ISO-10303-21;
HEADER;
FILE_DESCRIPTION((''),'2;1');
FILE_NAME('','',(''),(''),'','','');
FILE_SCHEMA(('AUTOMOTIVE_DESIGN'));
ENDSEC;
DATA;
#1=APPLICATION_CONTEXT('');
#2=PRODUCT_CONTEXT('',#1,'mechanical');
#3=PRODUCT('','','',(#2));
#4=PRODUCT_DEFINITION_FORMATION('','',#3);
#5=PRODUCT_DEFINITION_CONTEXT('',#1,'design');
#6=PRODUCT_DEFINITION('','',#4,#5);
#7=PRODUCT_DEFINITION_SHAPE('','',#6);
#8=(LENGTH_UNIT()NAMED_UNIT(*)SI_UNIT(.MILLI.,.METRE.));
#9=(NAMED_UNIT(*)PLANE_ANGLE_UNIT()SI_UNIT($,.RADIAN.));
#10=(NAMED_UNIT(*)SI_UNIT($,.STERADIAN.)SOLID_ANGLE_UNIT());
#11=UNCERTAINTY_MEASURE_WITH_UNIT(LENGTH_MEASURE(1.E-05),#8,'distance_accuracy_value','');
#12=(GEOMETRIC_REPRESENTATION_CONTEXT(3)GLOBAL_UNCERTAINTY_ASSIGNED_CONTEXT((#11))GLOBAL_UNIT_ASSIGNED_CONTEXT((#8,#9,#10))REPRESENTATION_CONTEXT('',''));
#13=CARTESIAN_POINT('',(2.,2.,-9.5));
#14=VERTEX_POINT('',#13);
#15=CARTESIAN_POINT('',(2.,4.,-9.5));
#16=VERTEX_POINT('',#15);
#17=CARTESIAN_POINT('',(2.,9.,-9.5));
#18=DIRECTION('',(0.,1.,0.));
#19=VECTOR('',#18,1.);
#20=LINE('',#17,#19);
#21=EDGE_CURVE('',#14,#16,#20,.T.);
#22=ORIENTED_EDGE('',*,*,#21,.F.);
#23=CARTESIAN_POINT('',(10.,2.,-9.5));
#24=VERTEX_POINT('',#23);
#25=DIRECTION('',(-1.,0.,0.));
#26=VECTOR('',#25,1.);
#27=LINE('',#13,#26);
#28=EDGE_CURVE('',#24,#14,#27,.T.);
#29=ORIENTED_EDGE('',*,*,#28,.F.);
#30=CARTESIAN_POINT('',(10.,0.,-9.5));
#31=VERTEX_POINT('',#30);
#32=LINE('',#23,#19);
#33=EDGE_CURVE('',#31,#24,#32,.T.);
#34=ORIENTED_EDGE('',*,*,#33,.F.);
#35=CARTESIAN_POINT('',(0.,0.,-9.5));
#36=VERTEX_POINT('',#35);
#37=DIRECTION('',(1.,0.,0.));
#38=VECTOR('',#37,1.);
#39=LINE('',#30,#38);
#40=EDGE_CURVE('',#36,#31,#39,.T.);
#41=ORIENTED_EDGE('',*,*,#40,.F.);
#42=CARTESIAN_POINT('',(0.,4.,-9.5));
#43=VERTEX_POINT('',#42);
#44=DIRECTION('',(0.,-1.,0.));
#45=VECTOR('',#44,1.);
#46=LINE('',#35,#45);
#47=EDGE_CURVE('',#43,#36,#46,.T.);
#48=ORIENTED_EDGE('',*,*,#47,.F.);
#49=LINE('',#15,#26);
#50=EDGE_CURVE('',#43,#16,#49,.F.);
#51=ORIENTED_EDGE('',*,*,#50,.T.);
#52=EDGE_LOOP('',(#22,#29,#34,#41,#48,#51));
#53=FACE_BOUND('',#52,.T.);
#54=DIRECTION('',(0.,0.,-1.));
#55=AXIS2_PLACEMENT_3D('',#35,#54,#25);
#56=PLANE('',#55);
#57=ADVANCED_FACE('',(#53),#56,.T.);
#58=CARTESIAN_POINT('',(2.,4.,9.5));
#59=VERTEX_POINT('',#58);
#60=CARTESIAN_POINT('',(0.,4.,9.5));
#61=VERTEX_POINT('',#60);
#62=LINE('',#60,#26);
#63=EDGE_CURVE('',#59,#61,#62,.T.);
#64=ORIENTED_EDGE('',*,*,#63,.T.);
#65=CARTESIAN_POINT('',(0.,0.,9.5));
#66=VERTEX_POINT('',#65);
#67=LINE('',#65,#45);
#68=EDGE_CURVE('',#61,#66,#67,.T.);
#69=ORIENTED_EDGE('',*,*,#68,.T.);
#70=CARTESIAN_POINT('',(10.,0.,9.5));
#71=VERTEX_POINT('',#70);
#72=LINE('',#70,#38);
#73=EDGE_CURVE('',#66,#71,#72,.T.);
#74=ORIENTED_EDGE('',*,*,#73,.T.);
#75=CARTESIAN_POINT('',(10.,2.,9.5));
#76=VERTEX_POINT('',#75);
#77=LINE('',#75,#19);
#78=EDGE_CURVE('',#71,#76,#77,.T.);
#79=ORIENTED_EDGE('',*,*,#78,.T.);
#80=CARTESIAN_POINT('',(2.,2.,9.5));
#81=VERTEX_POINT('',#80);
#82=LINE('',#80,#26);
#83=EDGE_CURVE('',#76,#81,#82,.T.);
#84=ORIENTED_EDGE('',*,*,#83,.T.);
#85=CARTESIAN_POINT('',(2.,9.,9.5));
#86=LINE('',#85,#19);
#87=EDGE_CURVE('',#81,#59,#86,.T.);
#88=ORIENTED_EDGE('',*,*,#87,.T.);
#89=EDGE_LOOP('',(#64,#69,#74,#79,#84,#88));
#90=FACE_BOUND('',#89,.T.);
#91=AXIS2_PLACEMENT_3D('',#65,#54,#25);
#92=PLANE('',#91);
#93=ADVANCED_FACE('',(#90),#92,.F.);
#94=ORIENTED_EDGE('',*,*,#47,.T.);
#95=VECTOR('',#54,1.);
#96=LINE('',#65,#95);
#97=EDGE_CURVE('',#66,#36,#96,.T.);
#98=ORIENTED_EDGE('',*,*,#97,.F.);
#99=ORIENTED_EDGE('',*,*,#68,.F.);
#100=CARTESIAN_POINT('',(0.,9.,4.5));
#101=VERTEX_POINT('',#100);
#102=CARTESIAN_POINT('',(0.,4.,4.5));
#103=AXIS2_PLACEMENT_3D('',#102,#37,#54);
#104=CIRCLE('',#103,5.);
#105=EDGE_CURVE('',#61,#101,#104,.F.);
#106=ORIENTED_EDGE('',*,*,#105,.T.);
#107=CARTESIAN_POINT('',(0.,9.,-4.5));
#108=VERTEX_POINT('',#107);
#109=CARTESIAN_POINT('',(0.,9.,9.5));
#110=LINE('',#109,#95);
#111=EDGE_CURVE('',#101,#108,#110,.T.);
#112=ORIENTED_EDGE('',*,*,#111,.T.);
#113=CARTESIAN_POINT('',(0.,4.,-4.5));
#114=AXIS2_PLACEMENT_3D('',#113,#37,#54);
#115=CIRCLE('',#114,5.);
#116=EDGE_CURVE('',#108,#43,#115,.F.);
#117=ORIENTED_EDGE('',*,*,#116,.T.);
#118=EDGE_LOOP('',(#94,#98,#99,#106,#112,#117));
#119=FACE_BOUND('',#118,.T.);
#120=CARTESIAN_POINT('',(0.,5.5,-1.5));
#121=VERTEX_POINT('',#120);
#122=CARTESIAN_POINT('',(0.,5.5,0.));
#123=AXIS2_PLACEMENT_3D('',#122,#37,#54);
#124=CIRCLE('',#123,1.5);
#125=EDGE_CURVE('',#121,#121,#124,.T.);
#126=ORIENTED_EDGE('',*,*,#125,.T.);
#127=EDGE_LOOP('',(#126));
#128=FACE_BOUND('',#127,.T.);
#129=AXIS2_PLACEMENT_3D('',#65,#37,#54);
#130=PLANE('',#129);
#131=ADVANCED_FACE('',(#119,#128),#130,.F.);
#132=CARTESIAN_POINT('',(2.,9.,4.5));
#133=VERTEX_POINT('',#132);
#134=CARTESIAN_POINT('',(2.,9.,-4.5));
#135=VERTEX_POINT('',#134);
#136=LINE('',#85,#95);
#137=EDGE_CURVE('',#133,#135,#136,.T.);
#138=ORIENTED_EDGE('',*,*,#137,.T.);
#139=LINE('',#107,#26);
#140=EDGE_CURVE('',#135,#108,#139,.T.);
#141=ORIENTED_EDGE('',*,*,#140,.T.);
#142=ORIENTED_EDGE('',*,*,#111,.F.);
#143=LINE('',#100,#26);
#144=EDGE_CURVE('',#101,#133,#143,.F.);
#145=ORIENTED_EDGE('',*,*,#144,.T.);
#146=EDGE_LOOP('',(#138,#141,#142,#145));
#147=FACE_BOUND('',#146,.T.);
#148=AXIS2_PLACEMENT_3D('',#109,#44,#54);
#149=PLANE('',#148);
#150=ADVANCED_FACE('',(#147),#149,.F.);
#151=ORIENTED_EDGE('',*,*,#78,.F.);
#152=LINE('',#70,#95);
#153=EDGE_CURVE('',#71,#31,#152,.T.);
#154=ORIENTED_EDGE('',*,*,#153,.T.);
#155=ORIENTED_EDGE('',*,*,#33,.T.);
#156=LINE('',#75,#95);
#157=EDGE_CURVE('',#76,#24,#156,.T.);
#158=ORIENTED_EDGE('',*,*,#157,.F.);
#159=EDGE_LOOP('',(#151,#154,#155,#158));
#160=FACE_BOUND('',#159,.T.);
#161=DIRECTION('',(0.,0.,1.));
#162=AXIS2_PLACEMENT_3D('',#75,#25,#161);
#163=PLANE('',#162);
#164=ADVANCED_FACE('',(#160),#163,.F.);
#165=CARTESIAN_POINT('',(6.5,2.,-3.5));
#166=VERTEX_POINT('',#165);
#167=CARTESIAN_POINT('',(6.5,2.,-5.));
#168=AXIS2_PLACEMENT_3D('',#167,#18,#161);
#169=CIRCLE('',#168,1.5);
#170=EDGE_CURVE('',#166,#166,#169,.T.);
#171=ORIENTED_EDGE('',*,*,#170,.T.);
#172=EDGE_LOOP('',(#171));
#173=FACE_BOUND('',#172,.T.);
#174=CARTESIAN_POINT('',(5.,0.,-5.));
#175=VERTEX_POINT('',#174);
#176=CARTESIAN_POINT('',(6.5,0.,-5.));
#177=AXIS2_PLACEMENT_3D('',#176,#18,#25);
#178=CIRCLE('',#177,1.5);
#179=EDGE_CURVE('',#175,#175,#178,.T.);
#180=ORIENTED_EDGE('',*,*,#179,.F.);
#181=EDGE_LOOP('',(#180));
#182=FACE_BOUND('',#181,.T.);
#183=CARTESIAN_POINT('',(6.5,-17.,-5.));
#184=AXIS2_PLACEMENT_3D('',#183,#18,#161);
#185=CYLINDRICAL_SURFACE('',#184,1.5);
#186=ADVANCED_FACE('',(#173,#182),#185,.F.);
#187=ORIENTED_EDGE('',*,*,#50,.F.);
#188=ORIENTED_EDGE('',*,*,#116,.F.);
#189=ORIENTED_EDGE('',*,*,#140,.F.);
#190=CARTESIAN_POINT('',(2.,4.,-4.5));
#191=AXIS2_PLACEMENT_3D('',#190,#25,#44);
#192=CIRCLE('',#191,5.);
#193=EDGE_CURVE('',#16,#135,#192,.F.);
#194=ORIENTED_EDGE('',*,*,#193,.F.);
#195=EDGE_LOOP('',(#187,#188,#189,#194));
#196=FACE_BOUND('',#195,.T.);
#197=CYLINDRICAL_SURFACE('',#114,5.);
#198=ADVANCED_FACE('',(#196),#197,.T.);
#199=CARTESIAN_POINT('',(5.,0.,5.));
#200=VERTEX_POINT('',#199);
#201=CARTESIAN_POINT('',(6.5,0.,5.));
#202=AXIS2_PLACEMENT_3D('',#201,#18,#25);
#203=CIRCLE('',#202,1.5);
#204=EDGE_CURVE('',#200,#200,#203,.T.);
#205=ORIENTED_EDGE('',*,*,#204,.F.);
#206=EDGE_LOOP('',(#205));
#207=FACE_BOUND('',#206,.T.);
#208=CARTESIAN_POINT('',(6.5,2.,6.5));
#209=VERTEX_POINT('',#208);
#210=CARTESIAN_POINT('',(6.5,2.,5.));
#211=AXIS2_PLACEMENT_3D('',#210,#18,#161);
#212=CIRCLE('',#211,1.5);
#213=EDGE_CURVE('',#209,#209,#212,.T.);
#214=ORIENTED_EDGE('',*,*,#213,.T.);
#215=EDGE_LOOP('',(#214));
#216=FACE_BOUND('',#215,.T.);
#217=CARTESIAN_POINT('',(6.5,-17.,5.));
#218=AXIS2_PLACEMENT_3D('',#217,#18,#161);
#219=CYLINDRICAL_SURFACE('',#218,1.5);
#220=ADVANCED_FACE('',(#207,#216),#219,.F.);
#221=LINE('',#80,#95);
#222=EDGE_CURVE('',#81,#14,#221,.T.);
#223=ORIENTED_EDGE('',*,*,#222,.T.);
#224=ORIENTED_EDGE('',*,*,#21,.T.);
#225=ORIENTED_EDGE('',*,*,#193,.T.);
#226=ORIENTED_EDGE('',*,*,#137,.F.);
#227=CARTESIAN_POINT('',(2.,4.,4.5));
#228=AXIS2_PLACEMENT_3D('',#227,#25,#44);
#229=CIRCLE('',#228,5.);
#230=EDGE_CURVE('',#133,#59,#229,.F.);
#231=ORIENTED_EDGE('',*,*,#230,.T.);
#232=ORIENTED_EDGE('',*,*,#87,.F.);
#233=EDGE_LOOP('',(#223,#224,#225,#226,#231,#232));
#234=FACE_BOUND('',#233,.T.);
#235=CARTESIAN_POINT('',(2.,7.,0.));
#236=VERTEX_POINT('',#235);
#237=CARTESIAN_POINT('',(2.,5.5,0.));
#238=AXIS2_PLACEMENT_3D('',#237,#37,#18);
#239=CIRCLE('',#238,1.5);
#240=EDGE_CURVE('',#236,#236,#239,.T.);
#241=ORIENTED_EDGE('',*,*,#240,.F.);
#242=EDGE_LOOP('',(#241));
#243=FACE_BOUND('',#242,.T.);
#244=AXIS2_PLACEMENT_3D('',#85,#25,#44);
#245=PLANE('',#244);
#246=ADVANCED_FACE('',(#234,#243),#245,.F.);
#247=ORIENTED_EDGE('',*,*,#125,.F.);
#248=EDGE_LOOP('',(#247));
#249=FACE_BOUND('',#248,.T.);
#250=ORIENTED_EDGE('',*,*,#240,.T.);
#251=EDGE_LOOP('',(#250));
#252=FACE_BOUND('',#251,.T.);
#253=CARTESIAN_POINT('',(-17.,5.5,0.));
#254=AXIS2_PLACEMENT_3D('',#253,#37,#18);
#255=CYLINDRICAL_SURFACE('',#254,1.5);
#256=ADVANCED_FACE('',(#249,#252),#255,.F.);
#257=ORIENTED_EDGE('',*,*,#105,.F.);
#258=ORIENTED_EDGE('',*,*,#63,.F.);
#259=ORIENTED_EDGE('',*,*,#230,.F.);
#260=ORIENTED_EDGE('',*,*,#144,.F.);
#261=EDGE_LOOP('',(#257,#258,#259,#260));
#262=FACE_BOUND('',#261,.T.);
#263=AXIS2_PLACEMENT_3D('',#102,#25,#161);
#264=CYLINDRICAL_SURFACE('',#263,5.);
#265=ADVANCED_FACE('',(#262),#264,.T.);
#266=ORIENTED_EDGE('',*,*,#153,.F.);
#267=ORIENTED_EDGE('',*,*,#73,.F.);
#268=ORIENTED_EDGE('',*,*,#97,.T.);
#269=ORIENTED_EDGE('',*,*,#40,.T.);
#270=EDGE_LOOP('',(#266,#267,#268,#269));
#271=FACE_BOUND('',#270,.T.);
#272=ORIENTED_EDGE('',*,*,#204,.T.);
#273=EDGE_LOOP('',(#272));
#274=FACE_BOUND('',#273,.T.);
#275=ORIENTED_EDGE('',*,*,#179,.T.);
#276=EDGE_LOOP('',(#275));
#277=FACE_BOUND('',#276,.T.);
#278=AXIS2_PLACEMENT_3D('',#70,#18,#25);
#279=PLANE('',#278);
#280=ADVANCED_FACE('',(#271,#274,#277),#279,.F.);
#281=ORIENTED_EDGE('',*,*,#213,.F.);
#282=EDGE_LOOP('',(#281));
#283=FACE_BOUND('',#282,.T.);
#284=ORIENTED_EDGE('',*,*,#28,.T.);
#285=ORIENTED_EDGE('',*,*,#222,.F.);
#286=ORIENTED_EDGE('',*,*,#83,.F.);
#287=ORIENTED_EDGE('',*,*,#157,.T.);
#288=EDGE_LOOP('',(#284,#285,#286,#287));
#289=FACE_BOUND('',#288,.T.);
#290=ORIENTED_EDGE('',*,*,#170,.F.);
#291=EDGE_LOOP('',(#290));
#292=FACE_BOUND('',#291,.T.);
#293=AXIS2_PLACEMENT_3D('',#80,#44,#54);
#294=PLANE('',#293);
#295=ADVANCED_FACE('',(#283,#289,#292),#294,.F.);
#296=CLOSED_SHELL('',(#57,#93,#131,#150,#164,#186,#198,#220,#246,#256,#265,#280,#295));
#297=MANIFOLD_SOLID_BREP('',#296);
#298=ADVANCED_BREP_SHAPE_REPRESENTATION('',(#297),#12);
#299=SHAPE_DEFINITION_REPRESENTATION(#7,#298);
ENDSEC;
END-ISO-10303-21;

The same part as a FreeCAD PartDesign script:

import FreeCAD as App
import Part
import Sketcher
from FreeCAD import Vector


def edges_at(feature, points):
    """Names of the edges that pass closest to the given points."""
    edges = feature.Shape.Edges
    near = lambda p: min(range(len(edges)), key=lambda i: edges[i].distToShape(Part.Vertex(*p))[0])
    return sorted({f"Edge{near(p) + 1}" for p in points})


def add_polygon(sketch, points):
    """Adds a closed chain of lines whose ends are joined by coincident constraints."""
    first, n = sketch.GeometryCount, len(points)
    for a, b in zip(points, points[1:] + points[:1]):
        sketch.addGeometry(Part.LineSegment(App.Vector(*a, 0), App.Vector(*b, 0)), False)
    for i in range(n):
        sketch.addConstraint(Sketcher.Constraint("Coincident", first + i, 2, first + (i + 1) % n, 1))

doc = App.newDocument("Part")
body = doc.addObject("PartDesign::Body", "Body")

# Sketch on XY plane
sketch1 = body.newObject("Sketcher::SketchObject", "Sketch")
sketch1.AttachmentSupport = (doc.getObject("XY_Plane"), [""])
sketch1.MapMode = "FlatFace"
add_polygon(sketch1, [(0, 9), (0, 0), (10, 0), (10, 2), (2, 2), (2, 9)])  # lines 0-5
sketch1.addConstraint(Sketcher.Constraint("Vertical", 0))
sketch1.addConstraint(Sketcher.Constraint("Horizontal", 1))
sketch1.addConstraint(Sketcher.Constraint("Vertical", 2))
sketch1.addConstraint(Sketcher.Constraint("Horizontal", 3))
sketch1.addConstraint(Sketcher.Constraint("Vertical", 4))
sketch1.addConstraint(Sketcher.Constraint("Horizontal", 5))
sketch1.addConstraint(Sketcher.Constraint("Coincident", 0, 2, -1, 1))
sketch1.addConstraint(Sketcher.Constraint("Equal", 5, 2))
sketch1.addConstraint(Sketcher.Constraint("DistanceX", 1, 1, 1, 2, 10.0))
sketch1.addConstraint(Sketcher.Constraint("DistanceX", 3, 2, 3, 1, 8.0))
sketch1.addConstraint(Sketcher.Constraint("DistanceY", 0, 2, 0, 1, 9.0))
pad1 = body.newObject("PartDesign::Pad", "Pad")
pad1.Profile = sketch1
pad1.Length = 19
pad1.Midplane = True

# Sketch on XZ plane
sketch2 = body.newObject("Sketcher::SketchObject", "Sketch001")
sketch2.AttachmentSupport = (doc.getObject("XZ_Plane"), [""])
sketch2.MapMode = "FlatFace"
sketch2.AttachmentOffset = App.Placement(Vector(0, 0, -2), App.Rotation())
sketch2.addGeometry(Part.Circle(Vector(6.5, -5, 0), Vector(0, 0, 1), 1.5), False)
sketch2.addGeometry(Part.Circle(Vector(6.5, 5, 0), Vector(0, 0, 1), 1.5), False)
sketch2.addConstraint(Sketcher.Constraint("Equal", 0, 1))
sketch2.addConstraint(Sketcher.Constraint("Symmetric", 0, 3, 1, 3, -1))
sketch2.addConstraint(Sketcher.Constraint("Diameter", 0, 3.0))
sketch2.addConstraint(Sketcher.Constraint("DistanceY", 0, 3, -1, 1, 5.0))
sketch2.addConstraint(Sketcher.Constraint("DistanceX", -1, 1, 0, 3, 6.5))
pocket1 = body.newObject("PartDesign::Pocket", "Pocket")
pocket1.Profile = sketch2
pocket1.Length = 19
pocket1.Reversed = True

# Sketch on YZ plane
sketch3 = body.newObject("Sketcher::SketchObject", "Sketch002")
sketch3.AttachmentSupport = (doc.getObject("YZ_Plane"), [""])
sketch3.MapMode = "FlatFace"
sketch3.AttachmentOffset = App.Placement(Vector(0, 0, 2), App.Rotation())
sketch3.addGeometry(Part.Circle(Vector(5.5, 0, 0), Vector(0, 0, 1), 1.5), False)
sketch3.addConstraint(Sketcher.Constraint("PointOnObject", 0, 3, -1))
sketch3.addConstraint(Sketcher.Constraint("Diameter", 0, 3.0))
sketch3.addConstraint(Sketcher.Constraint("DistanceX", -1, 1, 0, 3, 5.5))
pocket2 = body.newObject("PartDesign::Pocket", "Pocket001")
pocket2.Profile = sketch3
pocket2.Length = 19
doc.recompute()

fillet = body.newObject("PartDesign::Fillet", "Fillet")
fillet.Base = (pocket2, edges_at(pocket2, [(1, 9, 9.5), (1, 9, -9.5)]))
fillet.Radius = 5

doc.recompute()
